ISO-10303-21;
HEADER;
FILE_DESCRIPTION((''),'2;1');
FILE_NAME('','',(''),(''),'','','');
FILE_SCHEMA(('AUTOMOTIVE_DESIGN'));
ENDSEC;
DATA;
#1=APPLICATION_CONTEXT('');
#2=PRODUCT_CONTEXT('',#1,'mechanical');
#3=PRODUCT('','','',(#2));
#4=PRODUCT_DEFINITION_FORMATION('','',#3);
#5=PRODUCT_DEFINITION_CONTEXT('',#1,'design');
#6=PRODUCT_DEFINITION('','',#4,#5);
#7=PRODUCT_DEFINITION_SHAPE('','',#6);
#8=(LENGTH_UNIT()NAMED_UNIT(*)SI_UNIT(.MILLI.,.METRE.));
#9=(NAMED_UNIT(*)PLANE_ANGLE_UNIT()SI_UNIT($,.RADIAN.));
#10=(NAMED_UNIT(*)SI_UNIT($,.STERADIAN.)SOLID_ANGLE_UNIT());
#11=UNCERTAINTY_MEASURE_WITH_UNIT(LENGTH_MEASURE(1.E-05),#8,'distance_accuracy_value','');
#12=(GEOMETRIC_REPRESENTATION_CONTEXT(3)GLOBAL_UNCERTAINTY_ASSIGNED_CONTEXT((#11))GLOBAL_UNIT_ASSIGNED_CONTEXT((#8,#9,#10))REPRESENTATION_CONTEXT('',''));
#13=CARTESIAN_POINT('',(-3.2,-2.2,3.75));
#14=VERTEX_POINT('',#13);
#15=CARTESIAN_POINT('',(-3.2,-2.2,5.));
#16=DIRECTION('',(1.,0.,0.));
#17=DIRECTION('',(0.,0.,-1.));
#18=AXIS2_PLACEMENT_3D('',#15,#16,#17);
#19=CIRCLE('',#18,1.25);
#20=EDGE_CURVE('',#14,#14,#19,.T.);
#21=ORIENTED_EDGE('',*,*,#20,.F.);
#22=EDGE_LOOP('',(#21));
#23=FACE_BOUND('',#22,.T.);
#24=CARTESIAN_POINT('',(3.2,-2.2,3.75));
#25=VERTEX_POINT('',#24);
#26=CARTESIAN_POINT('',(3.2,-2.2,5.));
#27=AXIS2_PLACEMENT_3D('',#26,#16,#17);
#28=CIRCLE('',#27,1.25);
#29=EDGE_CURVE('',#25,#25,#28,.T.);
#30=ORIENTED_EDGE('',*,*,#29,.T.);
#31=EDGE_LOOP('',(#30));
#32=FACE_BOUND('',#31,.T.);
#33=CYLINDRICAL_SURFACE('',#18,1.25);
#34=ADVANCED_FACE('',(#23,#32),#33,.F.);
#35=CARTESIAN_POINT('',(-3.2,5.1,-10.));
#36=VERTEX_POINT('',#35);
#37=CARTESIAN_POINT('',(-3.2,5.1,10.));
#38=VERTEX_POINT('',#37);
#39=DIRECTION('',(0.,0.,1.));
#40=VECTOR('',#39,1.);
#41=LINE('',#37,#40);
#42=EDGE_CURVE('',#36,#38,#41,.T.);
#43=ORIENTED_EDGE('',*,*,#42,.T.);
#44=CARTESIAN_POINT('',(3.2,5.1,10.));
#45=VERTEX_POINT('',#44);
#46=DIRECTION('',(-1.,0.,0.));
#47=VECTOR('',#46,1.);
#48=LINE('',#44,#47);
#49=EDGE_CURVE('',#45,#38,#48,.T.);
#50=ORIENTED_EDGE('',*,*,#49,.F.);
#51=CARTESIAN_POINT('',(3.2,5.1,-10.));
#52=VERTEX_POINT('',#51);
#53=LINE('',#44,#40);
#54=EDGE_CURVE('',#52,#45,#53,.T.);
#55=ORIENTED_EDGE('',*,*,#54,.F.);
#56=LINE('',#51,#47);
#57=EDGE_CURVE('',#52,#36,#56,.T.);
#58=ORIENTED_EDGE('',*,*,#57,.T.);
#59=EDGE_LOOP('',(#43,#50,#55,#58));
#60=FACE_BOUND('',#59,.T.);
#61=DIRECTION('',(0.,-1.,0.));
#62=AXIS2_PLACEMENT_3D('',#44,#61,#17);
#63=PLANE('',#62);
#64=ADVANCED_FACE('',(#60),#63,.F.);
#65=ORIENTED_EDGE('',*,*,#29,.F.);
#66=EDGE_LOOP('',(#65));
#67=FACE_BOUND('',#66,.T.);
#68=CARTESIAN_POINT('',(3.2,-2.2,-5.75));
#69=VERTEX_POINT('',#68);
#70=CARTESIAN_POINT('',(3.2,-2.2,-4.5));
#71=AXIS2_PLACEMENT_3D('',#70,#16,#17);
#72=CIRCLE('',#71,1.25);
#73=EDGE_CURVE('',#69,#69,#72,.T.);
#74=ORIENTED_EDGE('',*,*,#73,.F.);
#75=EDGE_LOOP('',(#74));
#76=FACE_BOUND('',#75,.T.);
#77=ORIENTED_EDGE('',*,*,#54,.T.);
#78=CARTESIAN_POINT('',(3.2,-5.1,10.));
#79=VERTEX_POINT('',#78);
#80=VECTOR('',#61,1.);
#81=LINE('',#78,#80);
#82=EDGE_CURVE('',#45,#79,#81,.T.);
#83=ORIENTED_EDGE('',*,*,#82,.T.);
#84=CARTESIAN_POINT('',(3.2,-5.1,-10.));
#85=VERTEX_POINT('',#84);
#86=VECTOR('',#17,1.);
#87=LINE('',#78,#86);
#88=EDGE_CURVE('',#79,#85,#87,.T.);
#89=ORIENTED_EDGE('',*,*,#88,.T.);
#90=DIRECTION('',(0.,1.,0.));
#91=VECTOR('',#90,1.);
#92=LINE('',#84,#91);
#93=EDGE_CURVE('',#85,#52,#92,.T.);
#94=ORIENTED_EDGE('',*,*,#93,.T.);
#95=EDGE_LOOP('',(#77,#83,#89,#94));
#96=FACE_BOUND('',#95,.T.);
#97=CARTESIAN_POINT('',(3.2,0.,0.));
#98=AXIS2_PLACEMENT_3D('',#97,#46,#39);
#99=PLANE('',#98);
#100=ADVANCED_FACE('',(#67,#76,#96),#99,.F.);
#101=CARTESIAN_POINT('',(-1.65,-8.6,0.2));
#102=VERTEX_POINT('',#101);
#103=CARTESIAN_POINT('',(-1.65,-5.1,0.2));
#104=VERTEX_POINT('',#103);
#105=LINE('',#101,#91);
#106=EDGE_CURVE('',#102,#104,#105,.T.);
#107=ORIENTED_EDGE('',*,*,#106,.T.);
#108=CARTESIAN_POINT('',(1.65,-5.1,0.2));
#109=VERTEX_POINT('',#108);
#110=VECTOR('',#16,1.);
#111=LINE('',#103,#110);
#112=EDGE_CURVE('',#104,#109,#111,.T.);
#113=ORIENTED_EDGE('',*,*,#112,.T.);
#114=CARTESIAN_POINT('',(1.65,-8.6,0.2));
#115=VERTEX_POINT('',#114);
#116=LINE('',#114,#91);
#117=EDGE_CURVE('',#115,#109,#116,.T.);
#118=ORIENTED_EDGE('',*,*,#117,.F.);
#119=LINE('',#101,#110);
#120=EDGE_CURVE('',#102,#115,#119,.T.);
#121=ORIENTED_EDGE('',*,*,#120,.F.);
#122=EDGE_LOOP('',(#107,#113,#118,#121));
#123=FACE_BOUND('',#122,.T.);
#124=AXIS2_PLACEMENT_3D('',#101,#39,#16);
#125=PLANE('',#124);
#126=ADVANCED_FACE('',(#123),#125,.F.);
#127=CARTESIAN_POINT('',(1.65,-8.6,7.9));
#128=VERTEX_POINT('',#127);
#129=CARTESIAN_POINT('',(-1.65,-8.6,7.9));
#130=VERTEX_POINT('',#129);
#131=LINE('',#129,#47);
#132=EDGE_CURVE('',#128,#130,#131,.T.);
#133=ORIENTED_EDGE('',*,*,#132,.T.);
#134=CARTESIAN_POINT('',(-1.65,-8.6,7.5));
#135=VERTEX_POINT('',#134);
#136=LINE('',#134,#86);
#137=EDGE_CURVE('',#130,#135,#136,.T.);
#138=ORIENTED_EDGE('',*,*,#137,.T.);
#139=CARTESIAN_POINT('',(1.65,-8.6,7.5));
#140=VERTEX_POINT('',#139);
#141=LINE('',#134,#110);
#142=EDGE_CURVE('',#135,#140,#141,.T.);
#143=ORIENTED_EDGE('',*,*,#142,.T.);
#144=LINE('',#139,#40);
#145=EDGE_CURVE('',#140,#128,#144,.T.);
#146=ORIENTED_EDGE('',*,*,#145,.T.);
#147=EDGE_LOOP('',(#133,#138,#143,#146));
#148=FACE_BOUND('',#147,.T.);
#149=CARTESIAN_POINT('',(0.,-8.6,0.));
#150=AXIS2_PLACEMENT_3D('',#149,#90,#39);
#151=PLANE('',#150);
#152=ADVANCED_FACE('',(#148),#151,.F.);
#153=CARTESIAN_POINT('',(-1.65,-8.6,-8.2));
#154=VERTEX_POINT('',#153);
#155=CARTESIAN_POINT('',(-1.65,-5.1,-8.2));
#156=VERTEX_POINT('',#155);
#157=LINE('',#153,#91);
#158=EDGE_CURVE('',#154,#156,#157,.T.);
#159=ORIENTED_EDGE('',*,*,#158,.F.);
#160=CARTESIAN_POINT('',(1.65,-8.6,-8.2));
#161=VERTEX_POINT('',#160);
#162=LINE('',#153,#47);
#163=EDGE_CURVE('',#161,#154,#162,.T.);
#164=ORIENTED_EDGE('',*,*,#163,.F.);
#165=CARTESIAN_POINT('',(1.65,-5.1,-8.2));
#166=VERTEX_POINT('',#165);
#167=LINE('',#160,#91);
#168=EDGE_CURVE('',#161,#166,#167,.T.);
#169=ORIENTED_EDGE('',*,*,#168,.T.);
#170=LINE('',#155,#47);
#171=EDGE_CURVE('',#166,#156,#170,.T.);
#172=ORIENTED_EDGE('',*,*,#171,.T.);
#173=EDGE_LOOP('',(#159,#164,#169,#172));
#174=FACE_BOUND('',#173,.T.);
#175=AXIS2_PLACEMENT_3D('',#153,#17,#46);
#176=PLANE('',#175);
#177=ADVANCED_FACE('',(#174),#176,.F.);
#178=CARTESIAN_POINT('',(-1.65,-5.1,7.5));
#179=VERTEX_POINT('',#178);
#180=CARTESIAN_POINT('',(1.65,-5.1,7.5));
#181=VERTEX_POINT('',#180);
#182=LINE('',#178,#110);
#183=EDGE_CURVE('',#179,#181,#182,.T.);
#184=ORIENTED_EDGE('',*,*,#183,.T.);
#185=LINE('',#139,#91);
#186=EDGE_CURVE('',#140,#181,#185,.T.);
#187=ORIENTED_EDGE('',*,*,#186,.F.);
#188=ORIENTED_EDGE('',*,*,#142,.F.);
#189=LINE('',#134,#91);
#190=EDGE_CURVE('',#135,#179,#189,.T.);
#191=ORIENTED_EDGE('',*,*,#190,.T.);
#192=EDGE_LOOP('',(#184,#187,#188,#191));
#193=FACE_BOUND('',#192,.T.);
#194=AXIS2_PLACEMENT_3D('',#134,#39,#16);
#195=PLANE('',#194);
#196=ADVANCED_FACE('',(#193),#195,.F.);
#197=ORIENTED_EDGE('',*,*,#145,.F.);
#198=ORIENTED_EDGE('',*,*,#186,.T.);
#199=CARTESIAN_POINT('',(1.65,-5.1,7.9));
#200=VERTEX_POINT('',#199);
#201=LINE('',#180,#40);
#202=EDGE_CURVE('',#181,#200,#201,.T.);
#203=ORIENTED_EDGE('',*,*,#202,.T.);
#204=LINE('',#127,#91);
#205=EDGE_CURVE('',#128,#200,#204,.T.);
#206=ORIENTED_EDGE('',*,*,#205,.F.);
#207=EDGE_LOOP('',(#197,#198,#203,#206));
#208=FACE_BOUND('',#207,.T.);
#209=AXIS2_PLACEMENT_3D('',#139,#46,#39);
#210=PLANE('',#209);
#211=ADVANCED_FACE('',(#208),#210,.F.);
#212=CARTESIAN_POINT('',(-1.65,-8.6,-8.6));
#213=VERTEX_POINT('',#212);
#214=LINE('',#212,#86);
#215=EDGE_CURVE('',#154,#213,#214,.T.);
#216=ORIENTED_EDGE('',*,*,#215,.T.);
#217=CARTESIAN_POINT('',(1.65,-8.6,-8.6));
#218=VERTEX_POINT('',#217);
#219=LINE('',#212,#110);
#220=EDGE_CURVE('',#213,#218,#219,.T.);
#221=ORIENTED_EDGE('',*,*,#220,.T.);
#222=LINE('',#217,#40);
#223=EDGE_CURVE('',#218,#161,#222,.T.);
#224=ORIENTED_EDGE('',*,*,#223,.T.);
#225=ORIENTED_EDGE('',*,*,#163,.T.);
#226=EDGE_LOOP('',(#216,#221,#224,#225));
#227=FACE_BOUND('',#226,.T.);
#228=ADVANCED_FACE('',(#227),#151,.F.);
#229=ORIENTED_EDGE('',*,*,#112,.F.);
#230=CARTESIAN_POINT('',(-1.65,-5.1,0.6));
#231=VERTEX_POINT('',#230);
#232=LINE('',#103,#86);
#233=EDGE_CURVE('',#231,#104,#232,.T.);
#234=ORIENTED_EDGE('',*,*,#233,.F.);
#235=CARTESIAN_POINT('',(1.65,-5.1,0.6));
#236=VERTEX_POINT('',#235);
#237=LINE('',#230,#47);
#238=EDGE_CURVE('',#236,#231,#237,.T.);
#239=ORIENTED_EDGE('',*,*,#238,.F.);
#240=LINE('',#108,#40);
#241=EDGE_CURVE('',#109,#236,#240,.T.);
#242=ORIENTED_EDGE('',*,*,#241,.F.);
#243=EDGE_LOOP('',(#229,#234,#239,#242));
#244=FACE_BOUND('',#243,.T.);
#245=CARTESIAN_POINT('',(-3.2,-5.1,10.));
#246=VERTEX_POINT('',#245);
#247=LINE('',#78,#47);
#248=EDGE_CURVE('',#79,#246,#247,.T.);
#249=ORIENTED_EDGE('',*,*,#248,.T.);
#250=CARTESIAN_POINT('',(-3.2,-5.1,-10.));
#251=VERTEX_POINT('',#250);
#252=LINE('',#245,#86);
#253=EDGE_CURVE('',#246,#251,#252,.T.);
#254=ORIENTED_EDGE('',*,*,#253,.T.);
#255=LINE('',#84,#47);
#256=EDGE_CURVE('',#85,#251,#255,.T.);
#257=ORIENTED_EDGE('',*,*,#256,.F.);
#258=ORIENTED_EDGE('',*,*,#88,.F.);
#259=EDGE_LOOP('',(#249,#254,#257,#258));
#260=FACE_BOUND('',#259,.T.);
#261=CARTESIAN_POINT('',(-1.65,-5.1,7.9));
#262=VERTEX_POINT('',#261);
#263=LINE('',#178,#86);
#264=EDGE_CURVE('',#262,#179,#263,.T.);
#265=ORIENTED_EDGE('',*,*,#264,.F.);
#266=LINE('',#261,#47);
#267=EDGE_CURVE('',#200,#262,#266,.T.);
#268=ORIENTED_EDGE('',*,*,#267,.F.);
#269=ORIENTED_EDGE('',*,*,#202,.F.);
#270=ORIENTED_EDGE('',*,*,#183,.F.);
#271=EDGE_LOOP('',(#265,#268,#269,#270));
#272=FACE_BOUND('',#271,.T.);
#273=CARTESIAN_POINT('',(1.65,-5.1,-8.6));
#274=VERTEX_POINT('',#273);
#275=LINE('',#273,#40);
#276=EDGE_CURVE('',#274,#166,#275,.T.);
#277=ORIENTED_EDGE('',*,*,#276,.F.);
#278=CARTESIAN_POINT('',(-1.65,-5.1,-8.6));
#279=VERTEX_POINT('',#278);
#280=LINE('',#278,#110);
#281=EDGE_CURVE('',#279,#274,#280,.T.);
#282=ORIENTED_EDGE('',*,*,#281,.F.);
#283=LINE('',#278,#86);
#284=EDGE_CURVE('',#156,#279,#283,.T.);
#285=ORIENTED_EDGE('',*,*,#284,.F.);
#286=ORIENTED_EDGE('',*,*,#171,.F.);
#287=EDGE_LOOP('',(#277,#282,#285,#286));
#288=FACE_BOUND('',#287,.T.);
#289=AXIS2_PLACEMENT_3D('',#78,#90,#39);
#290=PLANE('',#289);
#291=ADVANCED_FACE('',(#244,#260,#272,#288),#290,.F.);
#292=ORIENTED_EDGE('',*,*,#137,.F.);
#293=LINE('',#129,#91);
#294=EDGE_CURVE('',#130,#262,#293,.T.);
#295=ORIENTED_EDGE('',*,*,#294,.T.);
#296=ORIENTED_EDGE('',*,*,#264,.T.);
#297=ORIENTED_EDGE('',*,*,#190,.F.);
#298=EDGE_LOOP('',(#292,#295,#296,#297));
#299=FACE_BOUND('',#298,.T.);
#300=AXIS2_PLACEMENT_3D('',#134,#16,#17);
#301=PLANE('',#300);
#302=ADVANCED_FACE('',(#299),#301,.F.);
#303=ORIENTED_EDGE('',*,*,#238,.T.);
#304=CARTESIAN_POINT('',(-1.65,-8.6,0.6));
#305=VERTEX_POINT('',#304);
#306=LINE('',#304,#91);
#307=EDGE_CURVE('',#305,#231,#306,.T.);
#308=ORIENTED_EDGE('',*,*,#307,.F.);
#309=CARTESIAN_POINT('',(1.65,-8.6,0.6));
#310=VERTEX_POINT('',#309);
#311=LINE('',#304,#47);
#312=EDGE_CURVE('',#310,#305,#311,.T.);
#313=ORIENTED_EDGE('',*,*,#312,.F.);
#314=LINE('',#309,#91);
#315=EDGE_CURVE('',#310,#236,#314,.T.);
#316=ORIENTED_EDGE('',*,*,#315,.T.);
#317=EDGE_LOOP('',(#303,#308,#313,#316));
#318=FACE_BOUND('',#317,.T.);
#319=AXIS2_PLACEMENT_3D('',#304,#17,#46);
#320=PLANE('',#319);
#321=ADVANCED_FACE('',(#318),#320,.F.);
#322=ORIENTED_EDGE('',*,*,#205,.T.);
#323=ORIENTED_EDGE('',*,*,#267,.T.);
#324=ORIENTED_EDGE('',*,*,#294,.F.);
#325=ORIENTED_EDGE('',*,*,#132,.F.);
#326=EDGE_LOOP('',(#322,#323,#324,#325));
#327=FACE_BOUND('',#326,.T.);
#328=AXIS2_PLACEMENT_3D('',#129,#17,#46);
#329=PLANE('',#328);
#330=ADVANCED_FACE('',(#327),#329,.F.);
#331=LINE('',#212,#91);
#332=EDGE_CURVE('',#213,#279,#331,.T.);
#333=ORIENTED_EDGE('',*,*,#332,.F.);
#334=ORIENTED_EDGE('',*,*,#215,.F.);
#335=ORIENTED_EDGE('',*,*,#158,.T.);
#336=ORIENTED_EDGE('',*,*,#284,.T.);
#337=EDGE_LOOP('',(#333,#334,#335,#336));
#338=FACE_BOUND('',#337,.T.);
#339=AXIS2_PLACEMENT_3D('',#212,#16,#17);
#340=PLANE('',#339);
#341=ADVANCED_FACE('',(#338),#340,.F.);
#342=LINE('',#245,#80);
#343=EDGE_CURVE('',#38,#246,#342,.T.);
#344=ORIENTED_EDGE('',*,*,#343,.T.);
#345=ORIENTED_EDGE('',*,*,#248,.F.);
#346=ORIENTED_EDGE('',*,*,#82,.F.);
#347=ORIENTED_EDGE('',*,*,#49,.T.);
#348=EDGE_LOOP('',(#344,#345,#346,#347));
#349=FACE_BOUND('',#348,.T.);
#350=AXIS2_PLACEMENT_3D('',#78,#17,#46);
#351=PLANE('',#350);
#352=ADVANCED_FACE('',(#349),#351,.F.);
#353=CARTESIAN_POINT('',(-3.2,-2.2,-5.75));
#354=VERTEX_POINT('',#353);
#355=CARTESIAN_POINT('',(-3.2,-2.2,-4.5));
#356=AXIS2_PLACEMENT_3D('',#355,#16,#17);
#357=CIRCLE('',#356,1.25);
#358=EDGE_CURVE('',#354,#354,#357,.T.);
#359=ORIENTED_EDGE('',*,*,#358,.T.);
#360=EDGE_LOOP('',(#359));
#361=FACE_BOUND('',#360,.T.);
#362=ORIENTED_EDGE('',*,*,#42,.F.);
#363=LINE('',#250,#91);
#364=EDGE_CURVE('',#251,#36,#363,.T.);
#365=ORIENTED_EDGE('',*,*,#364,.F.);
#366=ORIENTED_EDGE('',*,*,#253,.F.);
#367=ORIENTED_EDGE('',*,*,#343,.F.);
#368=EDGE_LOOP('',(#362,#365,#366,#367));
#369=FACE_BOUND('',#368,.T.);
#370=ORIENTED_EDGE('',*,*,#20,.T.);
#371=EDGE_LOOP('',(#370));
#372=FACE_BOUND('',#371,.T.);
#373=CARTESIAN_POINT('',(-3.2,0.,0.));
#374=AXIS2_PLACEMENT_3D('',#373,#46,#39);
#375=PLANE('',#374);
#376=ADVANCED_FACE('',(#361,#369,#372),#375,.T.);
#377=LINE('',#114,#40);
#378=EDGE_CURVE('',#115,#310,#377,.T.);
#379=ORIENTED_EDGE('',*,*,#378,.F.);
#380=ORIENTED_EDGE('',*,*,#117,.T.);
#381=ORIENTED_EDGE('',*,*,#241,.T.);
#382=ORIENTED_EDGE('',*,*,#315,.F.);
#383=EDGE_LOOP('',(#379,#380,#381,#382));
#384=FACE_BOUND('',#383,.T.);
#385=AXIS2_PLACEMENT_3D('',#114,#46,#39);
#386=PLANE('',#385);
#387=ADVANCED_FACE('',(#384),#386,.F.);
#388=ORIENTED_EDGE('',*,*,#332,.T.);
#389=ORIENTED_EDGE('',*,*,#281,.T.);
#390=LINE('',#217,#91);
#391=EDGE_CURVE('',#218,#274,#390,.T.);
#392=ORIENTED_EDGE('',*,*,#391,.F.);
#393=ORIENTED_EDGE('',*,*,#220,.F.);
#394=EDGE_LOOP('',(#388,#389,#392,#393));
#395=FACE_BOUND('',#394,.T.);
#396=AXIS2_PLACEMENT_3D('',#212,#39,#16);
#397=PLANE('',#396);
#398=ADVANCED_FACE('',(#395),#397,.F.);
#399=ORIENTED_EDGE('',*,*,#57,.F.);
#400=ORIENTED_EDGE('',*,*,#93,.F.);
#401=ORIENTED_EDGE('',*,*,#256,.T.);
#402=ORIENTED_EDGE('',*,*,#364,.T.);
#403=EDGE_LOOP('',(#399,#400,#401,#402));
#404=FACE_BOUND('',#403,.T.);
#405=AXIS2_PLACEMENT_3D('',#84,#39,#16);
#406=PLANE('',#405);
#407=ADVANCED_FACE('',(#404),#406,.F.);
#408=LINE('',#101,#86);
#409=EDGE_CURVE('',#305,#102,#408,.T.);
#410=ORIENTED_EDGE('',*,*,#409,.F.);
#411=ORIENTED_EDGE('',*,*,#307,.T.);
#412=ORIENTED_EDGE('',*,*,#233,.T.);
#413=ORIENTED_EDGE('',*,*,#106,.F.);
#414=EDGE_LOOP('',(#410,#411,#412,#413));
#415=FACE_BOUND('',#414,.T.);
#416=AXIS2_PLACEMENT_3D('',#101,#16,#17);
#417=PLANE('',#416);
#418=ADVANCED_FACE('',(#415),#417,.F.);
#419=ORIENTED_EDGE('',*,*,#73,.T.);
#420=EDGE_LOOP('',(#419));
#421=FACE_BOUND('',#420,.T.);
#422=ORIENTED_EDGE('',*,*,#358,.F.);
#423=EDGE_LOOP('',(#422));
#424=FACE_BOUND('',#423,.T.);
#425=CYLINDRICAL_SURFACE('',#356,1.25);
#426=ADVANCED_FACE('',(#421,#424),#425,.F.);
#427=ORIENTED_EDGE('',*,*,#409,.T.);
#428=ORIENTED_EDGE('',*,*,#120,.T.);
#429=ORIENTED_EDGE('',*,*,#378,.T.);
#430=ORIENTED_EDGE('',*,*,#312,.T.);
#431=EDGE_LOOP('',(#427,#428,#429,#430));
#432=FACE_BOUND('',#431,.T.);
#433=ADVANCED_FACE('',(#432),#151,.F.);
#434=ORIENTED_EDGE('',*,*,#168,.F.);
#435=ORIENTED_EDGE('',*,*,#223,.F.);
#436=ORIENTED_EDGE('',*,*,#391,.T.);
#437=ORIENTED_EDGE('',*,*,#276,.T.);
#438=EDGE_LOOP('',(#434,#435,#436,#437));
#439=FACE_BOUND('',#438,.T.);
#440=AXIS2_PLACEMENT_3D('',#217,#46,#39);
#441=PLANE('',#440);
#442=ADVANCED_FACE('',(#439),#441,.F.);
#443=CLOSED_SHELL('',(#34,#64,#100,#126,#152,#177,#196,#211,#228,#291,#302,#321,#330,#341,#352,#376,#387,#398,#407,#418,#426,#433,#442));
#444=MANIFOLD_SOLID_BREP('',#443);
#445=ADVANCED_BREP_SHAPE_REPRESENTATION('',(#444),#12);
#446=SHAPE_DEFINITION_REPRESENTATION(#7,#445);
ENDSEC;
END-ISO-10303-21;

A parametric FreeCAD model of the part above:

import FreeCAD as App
import Part
import Sketcher

V = App.Vector
Q = App.Units.Quantity


def add_polygon(sketch, points):
    """Adds a closed chain of lines whose ends are joined by coincident constraints."""
    first, n = sketch.GeometryCount, len(points)
    for a, b in zip(points, points[1:] + points[:1]):
        sketch.addGeometry(Part.LineSegment(App.Vector(*a, 0), App.Vector(*b, 0)), False)
    for i in range(n):
        sketch.addConstraint(Sketcher.Constraint("Coincident", first + i, 2, first + (i + 1) % n, 1))

doc = App.newDocument("Part")
body = doc.addObject("PartDesign::Body", "Body")

# Sketch on YZ plane
sketch1 = body.newObject("Sketcher::SketchObject", "Sketch")
sketch1.AttachmentSupport = (doc.getObject("YZ_Plane"), [""])
sketch1.MapMode = "FlatFace"
add_polygon(sketch1, [(5, 10), (-5, 10), (-5, -10), (5, -10)])  # lines 0-3
sketch1.addConstraint(Sketcher.Constraint("Horizontal", 0))
sketch1.addConstraint(Sketcher.Constraint("Vertical", 1))
sketch1.addConstraint(Sketcher.Constraint("Horizontal", 2))
sketch1.addConstraint(Sketcher.Constraint("Vertical", 3))
sketch1.addConstraint(Sketcher.Constraint("Symmetric", 0, 2, 2, 2, -1, 1))
sketch1.addConstraint(Sketcher.Constraint("DistanceY", 1, 2, 1, 1, Q("20 mm")))
sketch1.addConstraint(Sketcher.Constraint("DistanceX", 0, 2, 0, 1, Q("10.2 mm")))
pad1 = body.newObject("PartDesign::Pad", "Pad")
pad1.Profile = sketch1
pad1.Length = 6.4
pad1.Midplane = True

# Sketch on YZ plane
sketch2 = body.newObject("Sketcher::SketchObject", "Sketch001")
sketch2.AttachmentSupport = (doc.getObject("YZ_Plane"), [""])
sketch2.MapMode = "FlatFace"
sketch2.addGeometry(Part.Circle(V(-2.2, 5, 0), V(0, 0, 1), 1.2), False)
sketch2.addGeometry(Part.Circle(V(-2.2, -4.5, 0), V(0, 0, 1), 1.2), False)
sketch2.addConstraint(Sketcher.Constraint("Equal", 0, 1))
sketch2.addConstraint(Sketcher.Constraint("Vertical", 0, 3, 1, 3))
sketch2.addConstraint(Sketcher.Constraint("Diameter", 0, Q("2.5 mm")))
sketch2.addConstraint(Sketcher.Constraint("DistanceY", -1, 1, 0, 3, Q("5 mm")))
sketch2.addConstraint(Sketcher.Constraint("DistanceX", 0, 3, -1, 1, Q("2.2 mm")))
sketch2.addConstraint(Sketcher.Constraint("DistanceY", 1, 3, -1, 1, Q("4.5 mm")))
pocket1 = body.newObject("PartDesign::Pocket", "Pocket")
pocket1.Profile = sketch2
pocket1.Type = "ThroughAll"
pocket1.Midplane = True

# Sketch on XZ plane
sketch3 = body.newObject("Sketcher::SketchObject", "Sketch002")
sketch3.AttachmentSupport = (doc.getObject("XZ_Plane"), [""])
sketch3.MapMode = "FlatFace"
sketch3.AttachmentOffset = App.Placement(V(0, 0, 5.1), App.Rotation())
add_polygon(sketch3, [(-1.65, -8.2), (-1.65, -8.6), (1.65, -8.6), (1.65, -8.2)])  # lines 0-3
add_polygon(sketch3, [(-1.65, 0.6), (-1.65, 0.2), (1.65, 0.2), (1.65, 0.6)])  # lines 4-7
add_polygon(sketch3, [(-1.65, 7.9), (-1.65, 7.5), (1.65, 7.5), (1.65, 7.9)])  # lines 8-11
sketch3.addConstraint(Sketcher.Constraint("Vertical", 0))
sketch3.addConstraint(Sketcher.Constraint("Horizontal", 1))
sketch3.addConstraint(Sketcher.Constraint("Vertical", 2))
sketch3.addConstraint(Sketcher.Constraint("Horizontal", 3))
sketch3.addConstraint(Sketcher.Constraint("Vertical", 4))
sketch3.addConstraint(Sketcher.Constraint("Horizontal", 5))
sketch3.addConstraint(Sketcher.Constraint("Vertical", 6))
sketch3.addConstraint(Sketcher.Constraint("Horizontal", 7))
sketch3.addConstraint(Sketcher.Constraint("Vertical", 8))
sketch3.addConstraint(Sketcher.Constraint("Horizontal", 9))
sketch3.addConstraint(Sketcher.Constraint("Vertical", 10))
sketch3.addConstraint(Sketcher.Constraint("Horizontal", 11))
sketch3.addConstraint(Sketcher.Constraint("Vertical", 3, 2, 4, 2))
sketch3.addConstraint(Sketcher.Constraint("Vertical", 2, 2, 5, 2))
sketch3.addConstraint(Sketcher.Constraint("Vertical", 7, 2, 8, 2))
sketch3.addConstraint(Sketcher.Constraint("Vertical", 6, 2, 9, 2))
sketch3.addConstraint(Sketcher.Constraint("Equal", 2, 4))
sketch3.addConstraint(Sketcher.Constraint("Equal", 6, 8))
sketch3.addConstraint(Sketcher.Constraint("DistanceX", 1, 1, 1, 2, Q("3.3 mm")))
sketch3.addConstraint(Sketcher.Constraint("DistanceY", 0, 2, 0, 1, Q("0.4 mm")))
sketch3.addConstraint(Sketcher.Constraint("DistanceY", 0, 2, -1, 1, Q("8.6 mm")))
sketch3.addConstraint(Sketcher.Constraint("DistanceY", -1, 1, 4, 2, Q("0.2 mm")))
sketch3.addConstraint(Sketcher.Constraint("DistanceY", -1, 1, 8, 2, Q("7.5 mm")))
sketch3.addConstraint(Sketcher.Constraint("DistanceX", 0, 2, -1, 1, Q("1.65 mm")))
pad2 = body.newObject("PartDesign::Pad", "Pad001")
pad2.Profile = sketch3
pad2.Length = 3.5

doc.recompute()
